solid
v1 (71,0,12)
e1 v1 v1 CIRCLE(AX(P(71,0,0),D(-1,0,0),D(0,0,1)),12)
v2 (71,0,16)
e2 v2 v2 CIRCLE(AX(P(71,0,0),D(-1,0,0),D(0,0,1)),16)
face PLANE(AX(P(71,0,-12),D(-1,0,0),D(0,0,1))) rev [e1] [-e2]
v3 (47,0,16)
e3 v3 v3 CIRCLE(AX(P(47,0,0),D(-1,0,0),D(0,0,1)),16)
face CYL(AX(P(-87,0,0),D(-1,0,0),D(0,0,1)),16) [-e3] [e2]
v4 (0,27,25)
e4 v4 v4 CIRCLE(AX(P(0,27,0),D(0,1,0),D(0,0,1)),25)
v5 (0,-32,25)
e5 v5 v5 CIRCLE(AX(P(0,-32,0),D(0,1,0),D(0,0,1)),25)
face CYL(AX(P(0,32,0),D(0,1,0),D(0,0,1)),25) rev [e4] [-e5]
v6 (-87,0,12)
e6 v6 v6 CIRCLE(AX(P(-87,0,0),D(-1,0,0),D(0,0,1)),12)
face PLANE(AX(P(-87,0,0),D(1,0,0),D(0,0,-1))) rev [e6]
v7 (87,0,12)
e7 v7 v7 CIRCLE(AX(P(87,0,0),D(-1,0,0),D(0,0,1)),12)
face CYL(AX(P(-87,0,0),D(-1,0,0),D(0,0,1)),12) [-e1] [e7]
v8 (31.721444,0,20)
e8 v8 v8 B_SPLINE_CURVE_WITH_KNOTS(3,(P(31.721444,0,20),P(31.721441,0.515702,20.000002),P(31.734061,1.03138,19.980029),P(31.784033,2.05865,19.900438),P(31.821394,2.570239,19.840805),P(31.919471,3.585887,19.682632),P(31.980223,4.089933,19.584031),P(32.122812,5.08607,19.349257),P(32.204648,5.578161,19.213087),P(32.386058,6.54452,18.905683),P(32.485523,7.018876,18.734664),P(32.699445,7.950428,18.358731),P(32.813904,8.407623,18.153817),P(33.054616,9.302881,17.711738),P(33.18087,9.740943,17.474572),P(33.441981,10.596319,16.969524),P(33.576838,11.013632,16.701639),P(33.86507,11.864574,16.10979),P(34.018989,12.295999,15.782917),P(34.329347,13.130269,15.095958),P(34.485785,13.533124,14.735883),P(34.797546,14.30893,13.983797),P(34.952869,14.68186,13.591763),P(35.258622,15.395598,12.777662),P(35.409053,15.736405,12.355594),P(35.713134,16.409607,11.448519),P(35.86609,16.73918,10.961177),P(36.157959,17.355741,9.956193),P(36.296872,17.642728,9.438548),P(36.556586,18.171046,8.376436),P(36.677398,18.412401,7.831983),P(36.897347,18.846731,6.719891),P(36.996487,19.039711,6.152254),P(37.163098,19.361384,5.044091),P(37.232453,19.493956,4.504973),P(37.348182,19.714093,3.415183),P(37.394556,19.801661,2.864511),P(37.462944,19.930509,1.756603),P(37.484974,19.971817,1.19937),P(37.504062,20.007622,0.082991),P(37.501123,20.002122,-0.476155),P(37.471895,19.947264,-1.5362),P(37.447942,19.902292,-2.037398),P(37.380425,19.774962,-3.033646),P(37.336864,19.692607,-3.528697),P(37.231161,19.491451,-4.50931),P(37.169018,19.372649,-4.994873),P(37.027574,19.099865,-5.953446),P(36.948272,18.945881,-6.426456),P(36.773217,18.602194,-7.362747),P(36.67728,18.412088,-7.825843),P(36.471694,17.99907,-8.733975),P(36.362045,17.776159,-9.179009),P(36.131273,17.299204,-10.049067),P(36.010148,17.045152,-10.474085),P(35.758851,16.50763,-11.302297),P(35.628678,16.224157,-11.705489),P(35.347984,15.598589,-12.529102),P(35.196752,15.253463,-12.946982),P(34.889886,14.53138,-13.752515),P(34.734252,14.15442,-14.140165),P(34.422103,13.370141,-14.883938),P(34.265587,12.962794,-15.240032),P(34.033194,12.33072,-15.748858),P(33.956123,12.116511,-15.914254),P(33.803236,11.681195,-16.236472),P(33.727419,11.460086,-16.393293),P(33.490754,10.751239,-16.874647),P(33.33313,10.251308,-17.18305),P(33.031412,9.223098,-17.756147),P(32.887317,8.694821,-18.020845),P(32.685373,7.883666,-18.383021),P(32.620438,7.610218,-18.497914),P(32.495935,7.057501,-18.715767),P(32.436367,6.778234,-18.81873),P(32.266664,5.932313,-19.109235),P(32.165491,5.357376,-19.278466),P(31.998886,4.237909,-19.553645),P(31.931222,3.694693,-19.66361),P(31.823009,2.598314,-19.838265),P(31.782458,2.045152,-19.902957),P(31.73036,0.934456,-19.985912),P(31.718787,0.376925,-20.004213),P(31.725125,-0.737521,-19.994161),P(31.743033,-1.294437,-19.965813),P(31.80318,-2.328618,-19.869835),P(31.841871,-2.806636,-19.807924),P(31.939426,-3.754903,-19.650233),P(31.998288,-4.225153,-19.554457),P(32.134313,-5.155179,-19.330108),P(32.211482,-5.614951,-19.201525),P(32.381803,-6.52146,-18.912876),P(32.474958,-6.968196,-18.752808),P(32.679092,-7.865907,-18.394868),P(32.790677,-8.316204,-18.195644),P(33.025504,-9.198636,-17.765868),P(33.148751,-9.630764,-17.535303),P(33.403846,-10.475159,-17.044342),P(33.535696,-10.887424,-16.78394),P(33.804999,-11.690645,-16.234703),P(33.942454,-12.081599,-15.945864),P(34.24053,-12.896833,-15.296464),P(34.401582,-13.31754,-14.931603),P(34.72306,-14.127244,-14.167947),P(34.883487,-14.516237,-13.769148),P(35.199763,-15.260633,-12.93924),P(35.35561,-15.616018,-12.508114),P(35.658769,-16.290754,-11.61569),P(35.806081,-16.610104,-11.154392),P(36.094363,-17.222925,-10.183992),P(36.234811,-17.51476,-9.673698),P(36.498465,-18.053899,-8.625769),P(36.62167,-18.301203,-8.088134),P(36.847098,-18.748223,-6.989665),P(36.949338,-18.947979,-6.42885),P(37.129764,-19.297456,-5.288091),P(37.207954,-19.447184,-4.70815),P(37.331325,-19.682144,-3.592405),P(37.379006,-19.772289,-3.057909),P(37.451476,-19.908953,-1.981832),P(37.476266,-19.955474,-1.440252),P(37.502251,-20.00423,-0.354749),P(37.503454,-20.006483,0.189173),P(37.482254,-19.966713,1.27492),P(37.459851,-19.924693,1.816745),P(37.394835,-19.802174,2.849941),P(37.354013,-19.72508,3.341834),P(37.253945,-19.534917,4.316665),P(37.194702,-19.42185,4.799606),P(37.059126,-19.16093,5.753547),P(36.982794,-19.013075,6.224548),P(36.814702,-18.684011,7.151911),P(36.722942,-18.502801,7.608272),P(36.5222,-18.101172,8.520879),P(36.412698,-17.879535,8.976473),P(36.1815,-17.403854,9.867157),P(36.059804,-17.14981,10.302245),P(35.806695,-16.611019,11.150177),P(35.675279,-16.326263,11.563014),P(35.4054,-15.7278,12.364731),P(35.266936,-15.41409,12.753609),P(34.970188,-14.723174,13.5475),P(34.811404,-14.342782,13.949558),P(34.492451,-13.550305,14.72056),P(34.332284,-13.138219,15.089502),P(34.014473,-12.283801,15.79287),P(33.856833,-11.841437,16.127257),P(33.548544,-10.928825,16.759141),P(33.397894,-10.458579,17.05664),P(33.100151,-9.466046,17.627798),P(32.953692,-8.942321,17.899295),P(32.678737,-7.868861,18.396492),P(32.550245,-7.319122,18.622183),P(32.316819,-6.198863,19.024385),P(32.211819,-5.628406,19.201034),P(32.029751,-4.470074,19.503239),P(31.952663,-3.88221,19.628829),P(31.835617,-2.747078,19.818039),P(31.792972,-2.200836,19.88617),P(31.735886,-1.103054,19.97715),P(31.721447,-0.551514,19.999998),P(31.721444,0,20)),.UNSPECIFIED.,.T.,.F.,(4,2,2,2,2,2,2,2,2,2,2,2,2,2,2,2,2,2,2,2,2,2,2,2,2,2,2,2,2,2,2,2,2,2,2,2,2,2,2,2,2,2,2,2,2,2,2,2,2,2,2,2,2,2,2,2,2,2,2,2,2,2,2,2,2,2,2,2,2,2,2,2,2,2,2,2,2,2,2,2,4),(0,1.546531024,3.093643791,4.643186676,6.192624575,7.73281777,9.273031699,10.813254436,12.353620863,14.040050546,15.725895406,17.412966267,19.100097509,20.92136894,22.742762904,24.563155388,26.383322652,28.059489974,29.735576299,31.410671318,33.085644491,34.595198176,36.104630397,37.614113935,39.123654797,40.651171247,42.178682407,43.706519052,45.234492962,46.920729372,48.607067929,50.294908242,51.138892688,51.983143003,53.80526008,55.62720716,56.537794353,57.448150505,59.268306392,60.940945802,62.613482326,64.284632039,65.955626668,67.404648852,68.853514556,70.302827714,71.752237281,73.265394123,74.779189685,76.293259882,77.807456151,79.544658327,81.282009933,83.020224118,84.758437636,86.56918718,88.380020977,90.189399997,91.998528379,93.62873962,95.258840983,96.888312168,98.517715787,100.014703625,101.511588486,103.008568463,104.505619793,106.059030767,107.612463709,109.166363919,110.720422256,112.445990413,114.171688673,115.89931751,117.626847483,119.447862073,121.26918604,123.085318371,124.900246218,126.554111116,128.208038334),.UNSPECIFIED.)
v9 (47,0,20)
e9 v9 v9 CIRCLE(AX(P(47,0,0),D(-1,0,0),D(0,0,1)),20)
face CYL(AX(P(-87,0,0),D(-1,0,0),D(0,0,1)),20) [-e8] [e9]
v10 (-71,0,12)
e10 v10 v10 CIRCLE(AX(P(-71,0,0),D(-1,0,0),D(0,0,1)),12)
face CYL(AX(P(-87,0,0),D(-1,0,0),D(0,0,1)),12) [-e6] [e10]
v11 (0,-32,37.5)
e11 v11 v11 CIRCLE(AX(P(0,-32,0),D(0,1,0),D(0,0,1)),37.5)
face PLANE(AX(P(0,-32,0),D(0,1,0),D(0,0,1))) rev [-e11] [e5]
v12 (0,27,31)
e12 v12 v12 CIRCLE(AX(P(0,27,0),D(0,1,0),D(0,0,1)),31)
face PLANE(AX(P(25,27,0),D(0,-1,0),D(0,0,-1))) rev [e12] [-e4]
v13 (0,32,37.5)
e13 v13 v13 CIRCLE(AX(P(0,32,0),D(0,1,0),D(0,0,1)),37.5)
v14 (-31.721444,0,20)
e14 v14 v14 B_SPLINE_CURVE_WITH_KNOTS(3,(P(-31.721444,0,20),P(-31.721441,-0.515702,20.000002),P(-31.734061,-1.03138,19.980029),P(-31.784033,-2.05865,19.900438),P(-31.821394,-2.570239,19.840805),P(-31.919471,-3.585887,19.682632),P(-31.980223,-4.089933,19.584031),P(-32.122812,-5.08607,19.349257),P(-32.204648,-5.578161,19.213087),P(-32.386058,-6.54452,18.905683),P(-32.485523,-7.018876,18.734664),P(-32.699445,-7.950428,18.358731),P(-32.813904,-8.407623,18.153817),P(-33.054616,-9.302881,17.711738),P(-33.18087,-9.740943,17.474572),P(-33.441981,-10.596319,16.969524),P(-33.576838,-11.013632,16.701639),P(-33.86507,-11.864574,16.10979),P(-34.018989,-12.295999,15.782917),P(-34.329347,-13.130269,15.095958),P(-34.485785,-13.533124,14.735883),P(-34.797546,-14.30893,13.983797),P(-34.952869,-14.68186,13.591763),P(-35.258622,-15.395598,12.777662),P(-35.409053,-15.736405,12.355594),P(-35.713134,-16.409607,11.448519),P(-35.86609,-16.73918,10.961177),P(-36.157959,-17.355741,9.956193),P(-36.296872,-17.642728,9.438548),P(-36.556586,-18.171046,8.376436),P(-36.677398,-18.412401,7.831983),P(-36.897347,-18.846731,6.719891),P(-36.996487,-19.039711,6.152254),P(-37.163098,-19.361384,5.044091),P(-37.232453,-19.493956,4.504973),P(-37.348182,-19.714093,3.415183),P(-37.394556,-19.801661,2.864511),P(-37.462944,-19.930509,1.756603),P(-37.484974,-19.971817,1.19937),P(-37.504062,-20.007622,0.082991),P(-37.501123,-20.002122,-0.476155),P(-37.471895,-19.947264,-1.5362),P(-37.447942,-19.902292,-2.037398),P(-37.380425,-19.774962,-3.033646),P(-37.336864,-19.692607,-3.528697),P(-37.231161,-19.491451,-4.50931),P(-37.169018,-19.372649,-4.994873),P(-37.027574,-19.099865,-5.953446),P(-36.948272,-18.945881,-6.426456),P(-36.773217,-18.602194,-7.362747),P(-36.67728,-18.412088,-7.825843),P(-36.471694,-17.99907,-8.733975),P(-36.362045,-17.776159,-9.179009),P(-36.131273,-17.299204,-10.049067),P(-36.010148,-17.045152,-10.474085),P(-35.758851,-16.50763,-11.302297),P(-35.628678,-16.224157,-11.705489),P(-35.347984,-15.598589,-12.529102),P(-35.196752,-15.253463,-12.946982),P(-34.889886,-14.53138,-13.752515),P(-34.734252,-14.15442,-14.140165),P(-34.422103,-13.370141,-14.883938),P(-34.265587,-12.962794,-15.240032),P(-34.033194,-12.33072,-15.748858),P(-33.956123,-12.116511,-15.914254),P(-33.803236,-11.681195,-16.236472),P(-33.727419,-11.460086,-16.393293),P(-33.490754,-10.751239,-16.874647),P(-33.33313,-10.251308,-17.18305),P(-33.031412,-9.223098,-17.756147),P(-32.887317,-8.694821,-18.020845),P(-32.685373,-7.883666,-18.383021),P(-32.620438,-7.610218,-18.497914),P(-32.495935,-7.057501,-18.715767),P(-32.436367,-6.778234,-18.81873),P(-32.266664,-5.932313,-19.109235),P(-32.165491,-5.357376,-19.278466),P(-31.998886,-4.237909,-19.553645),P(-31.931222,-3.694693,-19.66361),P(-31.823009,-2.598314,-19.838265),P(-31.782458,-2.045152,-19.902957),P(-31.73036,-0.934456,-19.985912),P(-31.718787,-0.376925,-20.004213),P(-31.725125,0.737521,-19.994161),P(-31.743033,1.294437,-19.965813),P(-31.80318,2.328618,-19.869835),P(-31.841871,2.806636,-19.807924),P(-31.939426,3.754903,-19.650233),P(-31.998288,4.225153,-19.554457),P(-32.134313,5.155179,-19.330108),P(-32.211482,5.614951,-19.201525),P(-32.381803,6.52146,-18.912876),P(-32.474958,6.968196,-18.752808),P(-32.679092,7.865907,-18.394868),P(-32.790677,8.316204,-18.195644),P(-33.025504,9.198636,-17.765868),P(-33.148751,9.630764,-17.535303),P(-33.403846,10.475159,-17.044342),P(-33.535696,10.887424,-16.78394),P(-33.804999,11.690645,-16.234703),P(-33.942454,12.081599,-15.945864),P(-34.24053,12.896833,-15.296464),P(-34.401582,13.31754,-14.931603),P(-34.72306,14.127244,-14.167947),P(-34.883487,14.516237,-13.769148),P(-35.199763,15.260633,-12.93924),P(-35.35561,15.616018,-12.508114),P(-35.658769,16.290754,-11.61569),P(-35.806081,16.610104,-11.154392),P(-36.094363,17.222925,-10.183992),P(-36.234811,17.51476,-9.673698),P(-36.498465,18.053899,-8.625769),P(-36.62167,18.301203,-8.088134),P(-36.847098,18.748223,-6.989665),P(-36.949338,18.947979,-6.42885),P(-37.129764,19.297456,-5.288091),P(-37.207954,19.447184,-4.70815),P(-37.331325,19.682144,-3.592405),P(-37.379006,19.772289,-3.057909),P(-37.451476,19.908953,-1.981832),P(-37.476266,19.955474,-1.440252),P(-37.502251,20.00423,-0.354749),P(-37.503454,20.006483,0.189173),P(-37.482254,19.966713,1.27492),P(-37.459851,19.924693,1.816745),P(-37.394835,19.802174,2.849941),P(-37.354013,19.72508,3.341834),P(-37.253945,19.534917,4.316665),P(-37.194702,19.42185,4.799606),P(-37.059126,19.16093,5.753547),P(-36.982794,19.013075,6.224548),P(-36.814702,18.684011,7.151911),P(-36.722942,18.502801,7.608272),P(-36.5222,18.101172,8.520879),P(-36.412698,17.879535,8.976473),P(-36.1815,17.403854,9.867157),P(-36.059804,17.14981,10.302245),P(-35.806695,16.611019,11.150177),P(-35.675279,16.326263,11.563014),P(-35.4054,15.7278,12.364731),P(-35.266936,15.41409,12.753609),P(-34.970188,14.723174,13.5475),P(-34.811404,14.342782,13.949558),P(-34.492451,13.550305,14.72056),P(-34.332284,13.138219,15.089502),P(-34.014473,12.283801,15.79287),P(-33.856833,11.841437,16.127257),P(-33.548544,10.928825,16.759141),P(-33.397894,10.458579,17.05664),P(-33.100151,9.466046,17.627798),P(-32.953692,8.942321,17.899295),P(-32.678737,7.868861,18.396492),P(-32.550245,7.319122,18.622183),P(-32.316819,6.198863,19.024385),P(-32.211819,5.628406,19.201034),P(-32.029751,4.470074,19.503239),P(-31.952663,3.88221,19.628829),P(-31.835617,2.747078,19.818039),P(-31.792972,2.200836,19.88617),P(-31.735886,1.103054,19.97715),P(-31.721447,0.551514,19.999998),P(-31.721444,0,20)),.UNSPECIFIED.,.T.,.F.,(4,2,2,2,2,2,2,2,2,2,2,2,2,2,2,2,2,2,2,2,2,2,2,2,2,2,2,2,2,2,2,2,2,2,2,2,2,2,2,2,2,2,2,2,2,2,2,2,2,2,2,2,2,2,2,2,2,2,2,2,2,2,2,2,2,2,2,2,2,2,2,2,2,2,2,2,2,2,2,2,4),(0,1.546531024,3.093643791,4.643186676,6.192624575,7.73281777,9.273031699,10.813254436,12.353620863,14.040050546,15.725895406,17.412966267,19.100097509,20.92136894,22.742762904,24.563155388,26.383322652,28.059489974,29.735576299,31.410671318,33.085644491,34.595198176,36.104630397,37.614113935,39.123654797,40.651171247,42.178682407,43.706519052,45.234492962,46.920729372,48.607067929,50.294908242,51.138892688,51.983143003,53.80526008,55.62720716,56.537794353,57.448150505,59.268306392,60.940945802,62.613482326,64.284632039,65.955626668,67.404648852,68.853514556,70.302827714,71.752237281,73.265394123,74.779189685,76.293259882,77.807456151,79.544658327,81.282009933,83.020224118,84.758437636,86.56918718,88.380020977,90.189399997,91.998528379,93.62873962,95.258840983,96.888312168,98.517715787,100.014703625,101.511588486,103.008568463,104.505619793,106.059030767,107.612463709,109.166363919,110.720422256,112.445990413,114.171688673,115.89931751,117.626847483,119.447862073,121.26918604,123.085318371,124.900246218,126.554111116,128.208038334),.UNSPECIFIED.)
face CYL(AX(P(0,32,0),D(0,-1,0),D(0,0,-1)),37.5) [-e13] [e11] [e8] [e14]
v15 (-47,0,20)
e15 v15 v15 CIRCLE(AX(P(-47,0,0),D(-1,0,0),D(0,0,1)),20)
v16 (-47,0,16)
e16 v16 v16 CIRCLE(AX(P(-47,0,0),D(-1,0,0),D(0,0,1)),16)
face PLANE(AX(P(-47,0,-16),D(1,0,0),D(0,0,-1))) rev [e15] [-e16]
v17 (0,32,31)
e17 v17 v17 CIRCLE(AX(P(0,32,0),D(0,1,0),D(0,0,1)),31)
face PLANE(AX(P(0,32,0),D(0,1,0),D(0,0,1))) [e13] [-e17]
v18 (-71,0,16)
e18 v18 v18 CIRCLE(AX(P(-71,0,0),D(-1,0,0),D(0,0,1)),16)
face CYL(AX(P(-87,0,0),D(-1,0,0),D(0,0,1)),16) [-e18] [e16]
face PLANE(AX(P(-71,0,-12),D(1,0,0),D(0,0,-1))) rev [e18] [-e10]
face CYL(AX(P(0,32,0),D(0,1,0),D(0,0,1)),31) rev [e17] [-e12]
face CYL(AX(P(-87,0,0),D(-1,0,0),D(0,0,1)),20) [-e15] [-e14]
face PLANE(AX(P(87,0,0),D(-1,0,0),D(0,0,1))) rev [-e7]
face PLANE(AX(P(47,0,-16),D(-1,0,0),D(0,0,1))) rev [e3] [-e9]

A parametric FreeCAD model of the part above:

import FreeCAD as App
import Part
import Sketcher

doc = App.newDocument("Part")
body = doc.addObject("PartDesign::Body", "Body")

sketch1 = body.newObject("Sketcher::SketchObject", "Sketch")
sketch1.AttachmentSupport = (doc.getObject("XZ_Plane"), [""])
sketch1.MapMode = "FlatFace"
sketch1.addGeometry([
    Part.LineSegment(App.Vector(-87, -12, 0), App.Vector(-87, 0, 0)),
    Part.LineSegment(App.Vector(-87, 0, 0), App.Vector(87, 0, 0)),
    Part.LineSegment(App.Vector(87, 0, 0), App.Vector(87, -12, 0)),
    Part.LineSegment(App.Vector(87, -12, 0), App.Vector(71, -12, 0)),
    Part.LineSegment(App.Vector(71, -12, 0), App.Vector(71, -16, 0)),
    Part.LineSegment(App.Vector(71, -16, 0), App.Vector(47, -16, 0)),
    Part.LineSegment(App.Vector(47, -16, 0), App.Vector(47, -20, 0)),
    Part.LineSegment(App.Vector(47, -20, 0), App.Vector(-47, -20, 0)),
    Part.LineSegment(App.Vector(-47, -20, 0), App.Vector(-47, -16, 0)),
    Part.LineSegment(App.Vector(-47, -16, 0), App.Vector(-71, -16, 0)),
    Part.LineSegment(App.Vector(-71, -16, 0), App.Vector(-71, -12, 0)),
    Part.LineSegment(App.Vector(-71, -12, 0), App.Vector(-87, -12, 0)),
], False)
sketch1.addConstraint([
    Sketcher.Constraint("Coincident", 0, 2, 1, 1),
    Sketcher.Constraint("Coincident", 1, 2, 2, 1),
    Sketcher.Constraint("Coincident", 2, 2, 3, 1),
    Sketcher.Constraint("Coincident", 3, 2, 4, 1),
    Sketcher.Constraint("Coincident", 4, 2, 5, 1),
    Sketcher.Constraint("Coincident", 5, 2, 6, 1),
    Sketcher.Constraint("Coincident", 6, 2, 7, 1),
    Sketcher.Constraint("Coincident", 7, 2, 8, 1),
    Sketcher.Constraint("Coincident", 8, 2, 9, 1),
    Sketcher.Constraint("Coincident", 9, 2, 10, 1),
    Sketcher.Constraint("Coincident", 10, 2, 11, 1),
    Sketcher.Constraint("Coincident", 11, 2, 0, 1),
    Sketcher.Constraint("Vertical", 0),
    Sketcher.Constraint("Horizontal", 1),
    Sketcher.Constraint("Vertical", 2),
    Sketcher.Constraint("Horizontal", 3),
    Sketcher.Constraint("Vertical", 4),
    Sketcher.Constraint("Horizontal", 5),
    Sketcher.Constraint("Vertical", 6),
    Sketcher.Constraint("Horizontal", 7),
    Sketcher.Constraint("Vertical", 8),
    Sketcher.Constraint("Horizontal", 9),
    Sketcher.Constraint("Vertical", 10),
    Sketcher.Constraint("Horizontal", 11),
    Sketcher.Constraint("Symmetric", 0, 2, 1, 2, -1, 1),
    Sketcher.Constraint("Symmetric", 5, 2, 8, 2, -2),
    Sketcher.Constraint("Symmetric", 3, 2, 10, 2, -2),
    Sketcher.Constraint("Equal", 4, 6),
    Sketcher.Constraint("DistanceX", 1, 1, 1, 2, 174.0),
    Sketcher.Constraint("DistanceX", 3, 2, 3, 1, 16.0),
    Sketcher.Constraint("DistanceX", 5, 2, 5, 1, 24.0),
    Sketcher.Constraint("DistanceY", 0, 1, 0, 2, 12.0),
    Sketcher.Constraint("DistanceY", 4, 2, 4, 1, 4.0),
])
revolution = body.newObject("PartDesign::Revolution", "Revolution")
revolution.Profile = sketch1
revolution.ReferenceAxis = (sketch1, ["H_Axis"])
revolution.Angle = 360

sketch2 = body.newObject("Sketcher::SketchObject", "Sketch001")
sketch2.AttachmentSupport = (doc.getObject("XZ_Plane"), [""])
sketch2.MapMode = "FlatFace"
sketch2.addGeometry(Part.Circle(App.Vector(0, 0, 0), App.Vector(0, 0, 1), 37.5), False)
sketch2.addConstraint([
    Sketcher.Constraint("Coincident", 0, 3, -1, 1),
    Sketcher.Constraint("Diameter", 0, 75.0),
])
pad1 = body.newObject("PartDesign::Pad", "Pad")
pad1.Profile = sketch2
pad1.Length = 64
pad1.Midplane = True

sketch3 = body.newObject("Sketcher::SketchObject", "Sketch002")
sketch3.AttachmentSupport = (doc.getObject("XZ_Plane"), [""])
sketch3.MapMode = "FlatFace"
sketch3.AttachmentOffset = App.Placement(App.Vector(0, 0, -32), App.Rotation())
sketch3.addGeometry(Part.Circle(App.Vector(0, 0, 0), App.Vector(0, 0, 1), 25), False)
sketch3.addConstraint([
    Sketcher.Constraint("Coincident", 0, 3, -1, 1),
    Sketcher.Constraint("Diameter", 0, 50.0),
])
doc.recompute()
hole = body.newObject("PartDesign::Hole", "Hole")
hole.Profile = sketch3
hole.ThreadType = "None"
hole.Diameter = 50
hole.DepthType = "ThroughAll"
hole.HoleCutType = "Counterbore"
hole.HoleCutDiameter = 62
hole.HoleCutDepth = 5
hole.Reversed = True

doc.recompute()
